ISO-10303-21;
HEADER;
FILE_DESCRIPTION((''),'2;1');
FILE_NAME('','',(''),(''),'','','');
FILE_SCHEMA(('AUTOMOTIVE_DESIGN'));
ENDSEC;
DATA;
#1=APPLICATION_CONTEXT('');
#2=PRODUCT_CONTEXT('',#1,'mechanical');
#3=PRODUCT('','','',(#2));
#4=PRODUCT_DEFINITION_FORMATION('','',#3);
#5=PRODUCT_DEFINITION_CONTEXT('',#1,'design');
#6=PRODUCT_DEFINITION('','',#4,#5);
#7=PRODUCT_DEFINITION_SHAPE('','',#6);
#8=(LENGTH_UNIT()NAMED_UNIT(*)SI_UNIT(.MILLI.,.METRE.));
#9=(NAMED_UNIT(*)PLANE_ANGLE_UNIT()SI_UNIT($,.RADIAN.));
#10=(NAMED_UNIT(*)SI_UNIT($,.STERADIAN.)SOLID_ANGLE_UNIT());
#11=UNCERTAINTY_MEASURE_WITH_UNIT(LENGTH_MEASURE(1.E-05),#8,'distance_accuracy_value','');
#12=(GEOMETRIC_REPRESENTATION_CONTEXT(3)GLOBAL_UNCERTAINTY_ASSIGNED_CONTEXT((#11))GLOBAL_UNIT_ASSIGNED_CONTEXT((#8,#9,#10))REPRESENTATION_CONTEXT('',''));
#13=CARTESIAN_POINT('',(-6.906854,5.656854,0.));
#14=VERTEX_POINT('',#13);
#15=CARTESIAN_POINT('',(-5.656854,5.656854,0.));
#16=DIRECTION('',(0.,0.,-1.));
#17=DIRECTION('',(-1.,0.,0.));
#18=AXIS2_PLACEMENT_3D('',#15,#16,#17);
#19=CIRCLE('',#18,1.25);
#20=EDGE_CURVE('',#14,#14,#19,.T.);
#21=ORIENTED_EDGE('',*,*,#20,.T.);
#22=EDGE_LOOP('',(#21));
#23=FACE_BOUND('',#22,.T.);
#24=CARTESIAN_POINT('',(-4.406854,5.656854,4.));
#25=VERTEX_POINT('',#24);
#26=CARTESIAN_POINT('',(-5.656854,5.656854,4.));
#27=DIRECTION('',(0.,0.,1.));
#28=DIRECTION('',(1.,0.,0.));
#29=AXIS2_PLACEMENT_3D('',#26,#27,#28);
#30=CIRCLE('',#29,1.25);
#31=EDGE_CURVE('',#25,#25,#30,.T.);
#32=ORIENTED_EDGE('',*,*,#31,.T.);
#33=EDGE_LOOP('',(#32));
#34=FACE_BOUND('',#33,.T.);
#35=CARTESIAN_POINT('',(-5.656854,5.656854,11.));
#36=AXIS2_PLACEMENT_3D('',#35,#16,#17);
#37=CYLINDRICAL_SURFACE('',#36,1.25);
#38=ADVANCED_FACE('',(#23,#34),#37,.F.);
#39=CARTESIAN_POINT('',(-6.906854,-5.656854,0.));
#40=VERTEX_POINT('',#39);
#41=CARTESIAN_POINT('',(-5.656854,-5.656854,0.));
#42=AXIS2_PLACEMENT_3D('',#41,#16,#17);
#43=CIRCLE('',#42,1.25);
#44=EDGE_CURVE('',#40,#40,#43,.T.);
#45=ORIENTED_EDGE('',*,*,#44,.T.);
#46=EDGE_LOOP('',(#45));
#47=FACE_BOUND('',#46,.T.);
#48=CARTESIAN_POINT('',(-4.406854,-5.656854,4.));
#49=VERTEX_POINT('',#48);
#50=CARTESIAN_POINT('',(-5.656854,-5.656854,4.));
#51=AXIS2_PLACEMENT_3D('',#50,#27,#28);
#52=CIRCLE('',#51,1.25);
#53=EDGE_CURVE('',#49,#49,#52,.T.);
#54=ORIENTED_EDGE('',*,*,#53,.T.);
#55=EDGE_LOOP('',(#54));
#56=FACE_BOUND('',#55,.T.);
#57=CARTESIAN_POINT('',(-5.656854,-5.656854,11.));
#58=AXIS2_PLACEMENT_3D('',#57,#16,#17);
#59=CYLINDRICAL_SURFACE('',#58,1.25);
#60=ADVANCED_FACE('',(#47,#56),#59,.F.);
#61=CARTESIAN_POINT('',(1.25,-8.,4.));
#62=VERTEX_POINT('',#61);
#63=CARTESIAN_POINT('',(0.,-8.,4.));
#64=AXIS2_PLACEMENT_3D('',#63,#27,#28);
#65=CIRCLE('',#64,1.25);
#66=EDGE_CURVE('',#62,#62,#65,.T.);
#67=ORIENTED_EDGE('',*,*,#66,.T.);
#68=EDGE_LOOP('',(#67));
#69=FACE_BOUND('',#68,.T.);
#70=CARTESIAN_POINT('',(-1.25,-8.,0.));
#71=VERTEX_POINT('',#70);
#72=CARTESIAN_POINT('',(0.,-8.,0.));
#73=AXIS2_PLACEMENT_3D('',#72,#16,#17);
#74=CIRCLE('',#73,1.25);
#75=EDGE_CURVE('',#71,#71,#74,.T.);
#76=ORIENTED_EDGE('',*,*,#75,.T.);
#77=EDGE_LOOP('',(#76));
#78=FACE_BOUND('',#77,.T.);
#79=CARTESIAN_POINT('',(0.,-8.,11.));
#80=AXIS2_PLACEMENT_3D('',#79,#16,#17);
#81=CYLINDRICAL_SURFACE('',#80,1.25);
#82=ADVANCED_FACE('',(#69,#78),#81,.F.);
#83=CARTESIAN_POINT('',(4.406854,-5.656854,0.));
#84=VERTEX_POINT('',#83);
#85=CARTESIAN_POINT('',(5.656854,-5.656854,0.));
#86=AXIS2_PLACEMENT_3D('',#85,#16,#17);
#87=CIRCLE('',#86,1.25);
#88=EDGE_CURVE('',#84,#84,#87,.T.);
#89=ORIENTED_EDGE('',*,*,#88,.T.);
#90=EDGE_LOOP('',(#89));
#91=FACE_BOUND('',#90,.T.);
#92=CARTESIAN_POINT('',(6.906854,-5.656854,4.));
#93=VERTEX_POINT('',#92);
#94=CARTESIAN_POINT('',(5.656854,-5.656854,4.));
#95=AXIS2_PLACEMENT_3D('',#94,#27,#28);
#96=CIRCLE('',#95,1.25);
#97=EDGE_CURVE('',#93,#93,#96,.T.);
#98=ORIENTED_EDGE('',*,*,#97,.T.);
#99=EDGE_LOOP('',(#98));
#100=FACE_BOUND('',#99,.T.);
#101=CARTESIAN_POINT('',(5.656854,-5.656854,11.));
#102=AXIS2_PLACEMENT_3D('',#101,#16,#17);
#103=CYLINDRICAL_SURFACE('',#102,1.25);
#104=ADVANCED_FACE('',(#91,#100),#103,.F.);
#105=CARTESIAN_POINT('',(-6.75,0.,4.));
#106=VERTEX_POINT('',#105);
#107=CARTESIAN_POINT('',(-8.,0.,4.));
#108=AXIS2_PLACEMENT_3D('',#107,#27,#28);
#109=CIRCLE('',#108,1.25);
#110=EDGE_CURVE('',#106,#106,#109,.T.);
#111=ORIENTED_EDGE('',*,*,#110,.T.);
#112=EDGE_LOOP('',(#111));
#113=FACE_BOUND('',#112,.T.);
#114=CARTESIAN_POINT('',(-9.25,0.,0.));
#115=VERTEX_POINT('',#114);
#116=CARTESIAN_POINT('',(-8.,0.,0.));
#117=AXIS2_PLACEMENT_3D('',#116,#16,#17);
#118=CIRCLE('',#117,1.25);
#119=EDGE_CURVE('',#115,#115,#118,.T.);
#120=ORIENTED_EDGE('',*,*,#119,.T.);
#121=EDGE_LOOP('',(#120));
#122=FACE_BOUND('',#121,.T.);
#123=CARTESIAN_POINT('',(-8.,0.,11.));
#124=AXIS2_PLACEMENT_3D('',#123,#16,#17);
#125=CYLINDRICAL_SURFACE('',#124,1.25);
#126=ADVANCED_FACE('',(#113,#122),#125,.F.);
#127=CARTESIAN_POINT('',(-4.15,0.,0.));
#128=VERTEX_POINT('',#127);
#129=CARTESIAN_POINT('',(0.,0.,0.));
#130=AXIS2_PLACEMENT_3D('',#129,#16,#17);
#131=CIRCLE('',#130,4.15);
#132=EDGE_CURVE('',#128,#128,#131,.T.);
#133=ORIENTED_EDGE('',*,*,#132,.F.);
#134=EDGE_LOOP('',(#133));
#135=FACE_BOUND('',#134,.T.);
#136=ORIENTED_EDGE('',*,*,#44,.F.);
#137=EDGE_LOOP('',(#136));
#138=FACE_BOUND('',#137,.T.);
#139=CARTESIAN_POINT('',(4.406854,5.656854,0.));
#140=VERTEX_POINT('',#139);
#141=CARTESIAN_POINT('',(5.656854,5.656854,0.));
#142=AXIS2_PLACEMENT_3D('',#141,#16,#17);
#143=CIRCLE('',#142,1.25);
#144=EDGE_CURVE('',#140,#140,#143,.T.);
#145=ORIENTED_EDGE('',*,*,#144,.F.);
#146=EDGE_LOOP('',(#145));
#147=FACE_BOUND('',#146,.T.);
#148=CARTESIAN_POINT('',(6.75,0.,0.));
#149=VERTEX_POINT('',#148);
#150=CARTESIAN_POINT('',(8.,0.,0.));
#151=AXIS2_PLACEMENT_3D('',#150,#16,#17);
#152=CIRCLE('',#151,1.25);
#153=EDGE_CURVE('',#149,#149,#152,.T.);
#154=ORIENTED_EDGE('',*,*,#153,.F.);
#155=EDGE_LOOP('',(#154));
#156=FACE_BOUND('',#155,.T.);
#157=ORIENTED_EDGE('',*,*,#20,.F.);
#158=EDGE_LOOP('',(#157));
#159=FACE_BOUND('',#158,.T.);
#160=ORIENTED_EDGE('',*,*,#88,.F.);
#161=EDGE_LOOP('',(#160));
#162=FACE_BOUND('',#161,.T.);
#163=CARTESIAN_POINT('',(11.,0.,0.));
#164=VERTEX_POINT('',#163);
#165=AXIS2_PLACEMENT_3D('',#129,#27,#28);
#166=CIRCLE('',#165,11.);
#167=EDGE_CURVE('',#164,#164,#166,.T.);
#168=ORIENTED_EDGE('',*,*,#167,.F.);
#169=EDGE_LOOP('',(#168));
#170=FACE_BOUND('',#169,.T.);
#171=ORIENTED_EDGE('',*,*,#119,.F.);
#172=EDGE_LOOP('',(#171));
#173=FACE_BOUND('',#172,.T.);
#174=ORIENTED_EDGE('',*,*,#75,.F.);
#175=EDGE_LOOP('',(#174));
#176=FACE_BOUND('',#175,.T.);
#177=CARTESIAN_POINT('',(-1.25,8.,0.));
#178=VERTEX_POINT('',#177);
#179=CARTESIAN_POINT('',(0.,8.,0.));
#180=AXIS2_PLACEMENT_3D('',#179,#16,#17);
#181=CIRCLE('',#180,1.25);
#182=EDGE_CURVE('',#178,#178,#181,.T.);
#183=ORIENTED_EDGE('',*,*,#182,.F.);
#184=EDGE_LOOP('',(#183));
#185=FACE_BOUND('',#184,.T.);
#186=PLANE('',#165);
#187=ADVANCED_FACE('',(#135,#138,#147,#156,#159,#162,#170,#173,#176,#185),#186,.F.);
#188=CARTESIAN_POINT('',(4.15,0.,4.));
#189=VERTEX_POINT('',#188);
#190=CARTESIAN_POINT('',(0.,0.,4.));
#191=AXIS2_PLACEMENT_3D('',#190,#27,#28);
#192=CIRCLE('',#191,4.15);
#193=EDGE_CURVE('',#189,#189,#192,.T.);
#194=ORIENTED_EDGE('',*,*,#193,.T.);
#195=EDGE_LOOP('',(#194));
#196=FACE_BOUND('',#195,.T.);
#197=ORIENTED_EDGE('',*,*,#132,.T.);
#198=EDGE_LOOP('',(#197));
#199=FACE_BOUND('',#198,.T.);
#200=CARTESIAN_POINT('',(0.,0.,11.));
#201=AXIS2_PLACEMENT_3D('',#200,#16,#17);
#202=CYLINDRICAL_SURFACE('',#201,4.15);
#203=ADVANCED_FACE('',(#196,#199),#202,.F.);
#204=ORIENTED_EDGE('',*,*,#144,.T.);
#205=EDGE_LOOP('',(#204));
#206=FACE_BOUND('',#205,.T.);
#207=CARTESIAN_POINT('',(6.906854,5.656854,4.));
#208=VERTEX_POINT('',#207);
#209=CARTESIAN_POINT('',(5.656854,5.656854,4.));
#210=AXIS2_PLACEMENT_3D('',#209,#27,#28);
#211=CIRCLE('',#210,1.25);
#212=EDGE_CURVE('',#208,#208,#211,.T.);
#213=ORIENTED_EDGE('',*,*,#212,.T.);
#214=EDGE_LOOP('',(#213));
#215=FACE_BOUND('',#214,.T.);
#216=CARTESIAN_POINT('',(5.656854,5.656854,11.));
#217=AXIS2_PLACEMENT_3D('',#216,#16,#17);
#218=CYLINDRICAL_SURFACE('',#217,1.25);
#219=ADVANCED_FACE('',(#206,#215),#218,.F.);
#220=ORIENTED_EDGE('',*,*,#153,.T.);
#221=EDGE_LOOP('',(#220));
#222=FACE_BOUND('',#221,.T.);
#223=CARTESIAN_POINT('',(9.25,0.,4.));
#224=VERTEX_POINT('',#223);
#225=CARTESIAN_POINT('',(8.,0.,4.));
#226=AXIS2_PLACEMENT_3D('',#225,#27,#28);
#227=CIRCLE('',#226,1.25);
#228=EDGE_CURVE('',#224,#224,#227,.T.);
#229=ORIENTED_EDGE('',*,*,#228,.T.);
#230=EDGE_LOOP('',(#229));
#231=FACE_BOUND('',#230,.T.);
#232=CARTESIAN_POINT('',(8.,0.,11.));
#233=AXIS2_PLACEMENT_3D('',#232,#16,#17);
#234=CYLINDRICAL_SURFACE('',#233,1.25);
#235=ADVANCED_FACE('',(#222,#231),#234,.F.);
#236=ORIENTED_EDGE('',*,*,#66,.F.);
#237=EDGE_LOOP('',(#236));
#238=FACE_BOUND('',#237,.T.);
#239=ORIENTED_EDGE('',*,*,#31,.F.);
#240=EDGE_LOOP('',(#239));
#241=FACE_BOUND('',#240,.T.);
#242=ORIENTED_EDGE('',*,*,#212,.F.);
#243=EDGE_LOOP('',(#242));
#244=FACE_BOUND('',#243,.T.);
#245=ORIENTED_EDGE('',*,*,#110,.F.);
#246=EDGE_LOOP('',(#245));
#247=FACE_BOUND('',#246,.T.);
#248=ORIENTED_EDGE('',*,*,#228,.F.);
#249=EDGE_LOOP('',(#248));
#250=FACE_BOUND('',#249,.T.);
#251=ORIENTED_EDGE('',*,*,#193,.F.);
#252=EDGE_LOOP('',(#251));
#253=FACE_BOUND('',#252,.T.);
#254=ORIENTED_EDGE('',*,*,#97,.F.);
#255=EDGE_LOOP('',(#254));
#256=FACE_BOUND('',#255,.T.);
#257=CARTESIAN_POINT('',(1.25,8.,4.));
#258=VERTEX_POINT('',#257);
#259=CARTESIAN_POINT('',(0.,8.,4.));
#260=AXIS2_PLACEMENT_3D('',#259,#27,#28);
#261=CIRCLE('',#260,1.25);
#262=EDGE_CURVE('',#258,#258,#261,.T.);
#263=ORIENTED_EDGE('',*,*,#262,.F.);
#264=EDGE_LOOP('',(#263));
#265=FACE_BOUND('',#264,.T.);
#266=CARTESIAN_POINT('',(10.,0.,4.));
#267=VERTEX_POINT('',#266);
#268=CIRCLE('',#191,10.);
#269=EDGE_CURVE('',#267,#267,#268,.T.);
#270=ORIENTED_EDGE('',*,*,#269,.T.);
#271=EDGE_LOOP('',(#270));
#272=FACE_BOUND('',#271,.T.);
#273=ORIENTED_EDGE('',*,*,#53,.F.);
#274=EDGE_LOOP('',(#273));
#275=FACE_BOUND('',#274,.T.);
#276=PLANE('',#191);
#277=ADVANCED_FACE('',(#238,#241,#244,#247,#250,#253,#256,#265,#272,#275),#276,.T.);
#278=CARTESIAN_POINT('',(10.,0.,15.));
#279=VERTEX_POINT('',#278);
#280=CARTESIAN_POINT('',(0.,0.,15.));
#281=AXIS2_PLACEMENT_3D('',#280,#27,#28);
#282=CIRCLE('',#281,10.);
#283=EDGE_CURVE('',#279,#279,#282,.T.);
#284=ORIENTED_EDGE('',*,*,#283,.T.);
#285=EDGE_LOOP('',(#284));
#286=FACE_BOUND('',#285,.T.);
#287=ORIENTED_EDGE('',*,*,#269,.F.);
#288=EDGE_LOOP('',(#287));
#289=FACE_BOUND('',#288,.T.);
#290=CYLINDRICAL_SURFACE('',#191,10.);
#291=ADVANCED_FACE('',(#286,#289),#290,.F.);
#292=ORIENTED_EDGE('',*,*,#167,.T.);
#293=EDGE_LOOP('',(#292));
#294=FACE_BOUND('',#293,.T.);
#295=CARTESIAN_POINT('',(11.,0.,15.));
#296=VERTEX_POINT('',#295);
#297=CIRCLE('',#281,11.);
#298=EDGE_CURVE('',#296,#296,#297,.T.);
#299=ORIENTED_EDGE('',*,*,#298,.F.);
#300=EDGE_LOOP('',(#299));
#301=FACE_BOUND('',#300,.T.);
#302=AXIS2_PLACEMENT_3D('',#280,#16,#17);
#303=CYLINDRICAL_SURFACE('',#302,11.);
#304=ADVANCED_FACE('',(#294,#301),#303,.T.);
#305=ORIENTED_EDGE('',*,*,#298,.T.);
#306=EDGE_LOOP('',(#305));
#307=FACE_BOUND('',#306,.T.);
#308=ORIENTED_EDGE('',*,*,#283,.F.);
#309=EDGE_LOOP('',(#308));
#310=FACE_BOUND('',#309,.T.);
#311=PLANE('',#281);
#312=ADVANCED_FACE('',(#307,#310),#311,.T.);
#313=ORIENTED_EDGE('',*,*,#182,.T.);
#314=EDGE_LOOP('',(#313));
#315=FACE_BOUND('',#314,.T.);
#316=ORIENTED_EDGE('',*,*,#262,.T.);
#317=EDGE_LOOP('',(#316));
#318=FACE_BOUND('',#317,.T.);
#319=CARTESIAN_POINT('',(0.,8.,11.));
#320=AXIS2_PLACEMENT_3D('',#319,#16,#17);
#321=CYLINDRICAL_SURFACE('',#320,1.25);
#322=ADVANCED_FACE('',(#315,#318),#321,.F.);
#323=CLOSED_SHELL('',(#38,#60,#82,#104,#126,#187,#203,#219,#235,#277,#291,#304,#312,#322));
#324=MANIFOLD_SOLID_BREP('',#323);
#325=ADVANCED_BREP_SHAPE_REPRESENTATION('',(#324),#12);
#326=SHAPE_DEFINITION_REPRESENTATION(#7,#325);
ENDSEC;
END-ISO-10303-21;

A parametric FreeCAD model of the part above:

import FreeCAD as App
import Part
import Sketcher
Q = App.Units.Quantity

doc = App.newDocument("Part")
body = doc.addObject("PartDesign::Body", "Body")

# Sketch on XY plane
sketch1 = body.newObject("Sketcher::SketchObject", "Sketch")
sketch1.AttachmentSupport = (doc.getObject("XY_Plane"), [""])
sketch1.MapMode = "FlatFace"
sketch1.addGeometry(Part.Circle(App.Vector(0, 0, 0), App.Vector(0, 0, 1), 11), False)
sketch1.addConstraint([
    Sketcher.Constraint("Coincident", 0, 3, -1, 1),
    Sketcher.Constraint("Diameter", 0, Q("22 mm")),
])
pad1 = body.newObject("PartDesign::Pad", "Pad")
pad1.Profile = sketch1
pad1.Length = 15

# Sketch on XY plane
sketch2 = body.newObject("Sketcher::SketchObject", "Sketch001")
sketch2.AttachmentSupport = (doc.getObject("XY_Plane"), [""])
sketch2.MapMode = "FlatFace"
sketch2.AttachmentOffset = App.Placement(App.Vector(0, 0, 15), App.Rotation())
sketch2.addGeometry(Part.Circle(App.Vector(0, 0, 0), App.Vector(0, 0, 1), 10), False)
sketch2.addConstraint([
    Sketcher.Constraint("Coincident", 0, 3, -1, 1),
    Sketcher.Constraint("Diameter", 0, Q("20 mm")),
])
pocket1 = body.newObject("PartDesign::Pocket", "Pocket")
pocket1.Profile = sketch2
pocket1.Length = 11

# Sketch on XY plane
sketch3 = body.newObject("Sketcher::SketchObject", "Sketch002")
sketch3.AttachmentSupport = (doc.getObject("XY_Plane"), [""])
sketch3.MapMode = "FlatFace"
sketch3.addGeometry([
    Part.Circle(App.Vector(0, 0, 0), App.Vector(0, 0, 1), 4.15),  # 0
    Part.Circle(App.Vector(0, 8, 0), App.Vector(0, 0, 1), 1.25),  # 1
    Part.Circle(App.Vector(-5.656854, 5.656854, 0), App.Vector(0, 0, 1), 1.25),  # 2
    Part.Circle(App.Vector(-8, 0, 0), App.Vector(0, 0, 1), 1.25),  # 3
    Part.Circle(App.Vector(-5.656854, -5.656854, 0), App.Vector(0, 0, 1), 1.25),  # 4
    Part.Circle(App.Vector(0, -8, 0), App.Vector(0, 0, 1), 1.25),  # 5
    Part.Circle(App.Vector(5.656854, -5.656854, 0), App.Vector(0, 0, 1), 1.25),  # 6
    Part.Circle(App.Vector(8, 0, 0), App.Vector(0, 0, 1), 1.25),  # 7
    Part.Circle(App.Vector(5.656854, 5.656854, 0), App.Vector(0, 0, 1), 1.25),  # 8
], False)
sketch3.addConstraint([
    Sketcher.Constraint("Coincident", 0, 3, -1, 1),
    Sketcher.Constraint("Equal", 1, 2),
    Sketcher.Constraint("Equal", 2, 3),
    Sketcher.Constraint("Equal", 3, 4),
    Sketcher.Constraint("Equal", 4, 5),
    Sketcher.Constraint("Equal", 5, 6),
    Sketcher.Constraint("Equal", 6, 7),
    Sketcher.Constraint("Equal", 7, 8),
    Sketcher.Constraint("Symmetric", 1, 3, 5, 3, -1, 1),
    Sketcher.Constraint("Symmetric", 2, 3, 6, 3, -1, 1),
    Sketcher.Constraint("Symmetric", 3, 3, 7, 3, -1, 1),
    Sketcher.Constraint("Symmetric", 4, 3, 8, 3, -1, 1),
    Sketcher.Constraint("Symmetric", 4, 3, 6, 3, -2),
    Sketcher.Constraint("PointOnObject", 1, 3, -2),
    Sketcher.Constraint("PointOnObject", 3, 3, -1),
    Sketcher.Constraint("Diameter", 0, Q("8.3 mm")),
    Sketcher.Constraint("Diameter", 1, Q("2.5 mm")),
    Sketcher.Constraint("DistanceY", -1, 1, 1, 3, Q("8 mm")),
    Sketcher.Constraint("DistanceX", 3, 3, -1, 1, Q("8 mm")),
    Sketcher.Constraint("DistanceY", 4, 3, 2, 3, Q("11.313708 mm")),
    Sketcher.Constraint("DistanceX", 4, 3, 6, 3, Q("11.313708 mm")),
])
pocket2 = body.newObject("PartDesign::Pocket", "Pocket001")
pocket2.Profile = sketch3
pocket2.Length = 11
pocket2.Reversed = True

doc.recompute()
